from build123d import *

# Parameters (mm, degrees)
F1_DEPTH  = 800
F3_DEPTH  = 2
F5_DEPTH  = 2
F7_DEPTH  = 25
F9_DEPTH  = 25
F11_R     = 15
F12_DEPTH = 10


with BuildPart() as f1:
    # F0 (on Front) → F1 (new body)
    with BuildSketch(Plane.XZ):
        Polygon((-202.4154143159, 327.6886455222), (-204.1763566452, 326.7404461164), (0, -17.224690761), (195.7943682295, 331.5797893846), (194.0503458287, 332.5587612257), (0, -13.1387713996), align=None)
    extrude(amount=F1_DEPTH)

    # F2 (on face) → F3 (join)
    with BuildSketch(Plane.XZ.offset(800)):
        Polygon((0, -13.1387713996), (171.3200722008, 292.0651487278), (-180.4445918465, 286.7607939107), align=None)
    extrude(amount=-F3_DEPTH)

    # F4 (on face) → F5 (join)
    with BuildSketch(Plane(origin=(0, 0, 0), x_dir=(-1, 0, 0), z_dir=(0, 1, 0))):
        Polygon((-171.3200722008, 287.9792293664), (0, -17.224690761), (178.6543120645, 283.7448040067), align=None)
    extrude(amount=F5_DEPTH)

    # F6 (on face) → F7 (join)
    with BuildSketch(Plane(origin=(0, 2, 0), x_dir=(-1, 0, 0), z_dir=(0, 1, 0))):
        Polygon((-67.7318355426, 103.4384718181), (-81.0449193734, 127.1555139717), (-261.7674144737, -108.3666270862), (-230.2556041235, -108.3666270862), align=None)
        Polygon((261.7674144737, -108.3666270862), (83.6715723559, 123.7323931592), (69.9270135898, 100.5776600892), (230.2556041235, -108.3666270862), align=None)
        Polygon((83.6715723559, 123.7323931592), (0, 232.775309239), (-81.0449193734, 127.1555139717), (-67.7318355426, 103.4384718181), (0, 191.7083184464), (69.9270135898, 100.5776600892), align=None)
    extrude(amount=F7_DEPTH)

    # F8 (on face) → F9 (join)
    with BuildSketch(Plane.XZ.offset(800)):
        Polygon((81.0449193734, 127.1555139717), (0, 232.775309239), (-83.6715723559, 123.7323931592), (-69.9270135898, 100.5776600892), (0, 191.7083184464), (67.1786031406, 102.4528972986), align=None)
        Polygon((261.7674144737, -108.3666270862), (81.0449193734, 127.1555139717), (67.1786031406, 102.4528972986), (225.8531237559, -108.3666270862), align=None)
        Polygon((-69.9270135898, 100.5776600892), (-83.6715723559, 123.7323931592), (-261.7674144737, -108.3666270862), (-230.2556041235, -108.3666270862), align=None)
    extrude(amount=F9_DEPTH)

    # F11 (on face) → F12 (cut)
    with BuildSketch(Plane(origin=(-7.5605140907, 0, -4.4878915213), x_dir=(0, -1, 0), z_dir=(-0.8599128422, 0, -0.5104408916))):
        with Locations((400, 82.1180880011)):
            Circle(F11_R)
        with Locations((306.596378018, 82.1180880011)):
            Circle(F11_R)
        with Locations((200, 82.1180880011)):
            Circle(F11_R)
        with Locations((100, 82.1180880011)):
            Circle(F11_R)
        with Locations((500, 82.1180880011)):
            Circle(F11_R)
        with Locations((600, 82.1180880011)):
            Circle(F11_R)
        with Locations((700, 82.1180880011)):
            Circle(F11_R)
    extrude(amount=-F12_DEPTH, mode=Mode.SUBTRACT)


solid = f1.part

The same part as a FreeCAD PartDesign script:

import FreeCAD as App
import Part
import Sketcher
Q = App.Units.Quantity

doc = App.newDocument("Part")
body = doc.addObject("PartDesign::Body", "Body")

sketch1 = doc.addObject("Sketcher::SketchObject", "Sketch")
body.addObject(sketch1)
sketch1.AttachmentSupport = (doc.XZ_Plane, [""])
sketch1.MapMode = "FlatFace"
sketch1.addGeometry(Part.LineSegment(App.Vector(-202.4, 327.7, 0), App.Vector(-204.2, 326.7, 0)), False)
sketch1.addGeometry(Part.LineSegment(App.Vector(-204.2, 326.7, 0), App.Vector(0, -17.2, 0)), False)
sketch1.addGeometry(Part.LineSegment(App.Vector(0, -17.2, 0), App.Vector(195.8, 331.6, 0)), False)
sketch1.addGeometry(Part.LineSegment(App.Vector(195.8, 331.6, 0), App.Vector(194.1, 332.6, 0)), False)
sketch1.addGeometry(Part.LineSegment(App.Vector(194.1, 332.6, 0), App.Vector(0, -13.1, 0)), False)
sketch1.addGeometry(Part.LineSegment(App.Vector(0, -13.1, 0), App.Vector(-202.4, 327.7, 0)), False)
sketch1.addConstraint(Sketcher.Constraint("Coincident", 0, 2, 1, 1))
sketch1.addConstraint(Sketcher.Constraint("Coincident", 1, 2, 2, 1))
sketch1.addConstraint(Sketcher.Constraint("Coincident", 2, 2, 3, 1))
sketch1.addConstraint(Sketcher.Constraint("Coincident", 3, 2, 4, 1))
sketch1.addConstraint(Sketcher.Constraint("Coincident", 4, 2, 5, 1))
sketch1.addConstraint(Sketcher.Constraint("Coincident", 5, 2, 0, 1))
sketch1.addConstraint(Sketcher.Constraint("PointOnObject", 1, 2, -2))
sketch1.addConstraint(Sketcher.Constraint("PointOnObject", 4, 2, -2))
sketch1.addConstraint(Sketcher.Constraint("Perpendicular", 2, 3))
sketch1.addConstraint(Sketcher.Constraint("Perpendicular", 3, 4))
sketch1.addConstraint(Sketcher.Constraint("Equal", 1, 2))
sketch1.addConstraint(Sketcher.Constraint("Equal", 0, 3))
sketch1.addConstraint(Sketcher.Constraint("Distance", 0, Q("2 mm")))
sketch1.addConstraint(Sketcher.Constraint("Distance", 1, Q("400 mm")))
sketch1.addConstraint(Sketcher.Constraint("DistanceY", 0, 2, 5, 2, Q("0.948199 mm")))
sketch1.addConstraint(Sketcher.Constraint("DistanceY", 1, 2, -1, 1, Q("17.224691 mm")))
sketch1.addConstraint(Sketcher.Constraint("DistanceX", -1, 1, 2, 2, Q("195.794368 mm")))
sketch1.addConstraint(Sketcher.Constraint("DistanceX", 5, 2, 3, 2, Q("396.46576 mm")))
pad1 = doc.addObject("PartDesign::Pad", "Pad")
body.addObject(pad1)
pad1.Profile = sketch1
pad1.Length = 800

sketch2 = doc.addObject("Sketcher::SketchObject", "Sketch001")
body.addObject(sketch2)
sketch2.AttachmentSupport = (doc.XZ_Plane, [""])
sketch2.MapMode = "FlatFace"
sketch2.AttachmentOffset = App.Placement(App.Vector(0, 0, 800), App.Rotation())
sketch2.addGeometry(Part.LineSegment(App.Vector(0, -13, 0), App.Vector(171, 292, 0)), False)
sketch2.addGeometry(Part.LineSegment(App.Vector(171, 292, 0), App.Vector(-180, 287, 0)), False)
sketch2.addGeometry(Part.LineSegment(App.Vector(-180, 287, 0), App.Vector(0, -13, 0)), False)
sketch2.addConstraint(Sketcher.Constraint("Coincident", 0, 2, 1, 1))
sketch2.addConstraint(Sketcher.Constraint("Coincident", 1, 2, 2, 1))
sketch2.addConstraint(Sketcher.Constraint("Coincident", 2, 2, 0, 1))
sketch2.addConstraint(Sketcher.Constraint("PointOnObject", 2, 2, -2))
sketch2.addConstraint(Sketcher.Constraint("Equal", 0, 2))
sketch2.addConstraint(Sketcher.Constraint("Distance", 0, Q("350 mm")))
sketch2.addConstraint(Sketcher.Constraint("DistanceY", -1, 1, 0, 2, Q("292.065149 mm")))
sketch2.addConstraint(Sketcher.Constraint("DistanceX", 1, 2, -1, 1, Q("180.444592 mm")))
sketch2.addConstraint(Sketcher.Constraint("DistanceY", 2, 2, -1, 1, Q("13.138771 mm")))
pad2 = doc.addObject("PartDesign::Pad", "Pad001")
body.addObject(pad2)
pad2.Profile = sketch2
pad2.Length = 2
pad2.Reversed = True

sketch3 = doc.addObject("Sketcher::SketchObject", "Sketch002")
body.addObject(sketch3)
sketch3.AttachmentSupport = (doc.XZ_Plane, [""])
sketch3.MapMode = "FlatFace"
sketch3.addGeometry(Part.LineSegment(App.Vector(171, 288, 0), App.Vector(0, -17, 0)), False)
sketch3.addGeometry(Part.LineSegment(App.Vector(0, -17, 0), App.Vector(-179, 284, 0)), False)
sketch3.addGeometry(Part.LineSegment(App.Vector(-179, 284, 0), App.Vector(171, 288, 0)), False)
sketch3.addConstraint(Sketcher.Constraint("Coincident", 0, 2, 1, 1))
sketch3.addConstraint(Sketcher.Constraint("Coincident", 1, 2, 2, 1))
sketch3.addConstraint(Sketcher.Constraint("Coincident", 2, 2, 0, 1))
sketch3.addConstraint(Sketcher.Constraint("PointOnObject", 0, 2, -2))
sketch3.addConstraint(Sketcher.Constraint("Equal", 0, 1))
sketch3.addConstraint(Sketcher.Constraint("Equal", 1, 2))
sketch3.addConstraint(Sketcher.Constraint("Distance", 0, Q("350 mm")))
sketch3.addConstraint(Sketcher.Constraint("DistanceY", 0, 2, -1, 1, Q("17.224691 mm")))
sketch3.addConstraint(Sketcher.Constraint("DistanceY", -1, 1, 2, 2, Q("287.979229 mm")))
pad3 = doc.addObject("PartDesign::Pad", "Pad002")
body.addObject(pad3)
pad3.Profile = sketch3
pad3.Length = 2
pad3.Reversed = True

sketch4 = doc.addObject("Sketcher::SketchObject", "Sketch003")
body.addObject(sketch4)
sketch4.AttachmentSupport = (doc.XZ_Plane, [""])
sketch4.MapMode = "FlatFace"
sketch4.AttachmentOffset = App.Placement(App.Vector(0, 0, -2), App.Rotation())
sketch4.addGeometry(Part.LineSegment(App.Vector(262, -108, 0), App.Vector(230, -108, 0)), False)
sketch4.addGeometry(Part.LineSegment(App.Vector(230, -108, 0), App.Vector(0, 192, 0)), False)
sketch4.addGeometry(Part.LineSegment(App.Vector(0, 192, 0), App.Vector(-230, -108, 0)), False)
sketch4.addGeometry(Part.LineSegment(App.Vector(-230, -108, 0), App.Vector(-262, -108, 0)), False)
sketch4.addGeometry(Part.LineSegment(App.Vector(-262, -108, 0), App.Vector(0, 233, 0)), False)
sketch4.addGeometry(Part.LineSegment(App.Vector(0, 233, 0), App.Vector(262, -108, 0)), False)
sketch4.addConstraint(Sketcher.Constraint("Coincident", 0, 2, 1, 1))
sketch4.addConstraint(Sketcher.Constraint("Coincident", 1, 2, 2, 1))
sketch4.addConstraint(Sketcher.Constraint("Coincident", 2, 2, 3, 1))
sketch4.addConstraint(Sketcher.Constraint("Coincident", 3, 2, 4, 1))
sketch4.addConstraint(Sketcher.Constraint("Coincident", 4, 2, 5, 1))
sketch4.addConstraint(Sketcher.Constraint("Coincident", 5, 2, 0, 1))
sketch4.addConstraint(Sketcher.Constraint("Horizontal", 0))
sketch4.addConstraint(Sketcher.Constraint("Horizontal", 3))
sketch4.addConstraint(Sketcher.Constraint("Symmetric", 0, 2, 2, 2, -2))
sketch4.addConstraint(Sketcher.Constraint("PointOnObject", 1, 2, -2))
sketch4.addConstraint(Sketcher.Constraint("PointOnObject", 4, 2, -2))
sketch4.addConstraint(Sketcher.Constraint("Parallel", 2, 4))
sketch4.addConstraint(Sketcher.Constraint("Parallel", 1, 5))
sketch4.addConstraint(Sketcher.Constraint("Distance", 4, Q("430 mm")))
sketch4.addConstraint(Sketcher.Constraint("Angle", 1, Q("127.5 deg")))
sketch4.addConstraint(Sketcher.Constraint("DistanceX", 0, 2, 0, 1, Q("31.51181 mm")))
sketch4.addConstraint(Sketcher.Constraint("DistanceY", -1, 1, 1, 2, Q("191.708318 mm")))
pad4 = doc.addObject("PartDesign::Pad", "Pad003")
body.addObject(pad4)
pad4.Profile = sketch4
pad4.Length = 25
pad4.Reversed = True

sketch5 = doc.addObject("Sketcher::SketchObject", "Sketch004")
body.addObject(sketch5)
sketch5.AttachmentSupport = (doc.XZ_Plane, [""])
sketch5.MapMode = "FlatFace"
sketch5.AttachmentOffset = App.Placement(App.Vector(0, 0, 800), App.Rotation())
sketch5.addGeometry(Part.LineSegment(App.Vector(0, 233, 0), App.Vector(-262, -108, 0)), False)
sketch5.addGeometry(Part.LineSegment(App.Vector(-262, -108, 0), App.Vector(-230, -108, 0)), False)
sketch5.addGeometry(Part.LineSegment(App.Vector(-230, -108, 0), App.Vector(0, 192, 0)), False)
sketch5.addGeometry(Part.LineSegment(App.Vector(0, 192, 0), App.Vector(226, -108, 0)), False)
sketch5.addGeometry(Part.LineSegment(App.Vector(226, -108, 0), App.Vector(262, -108, 0)), False)
sketch5.addGeometry(Part.LineSegment(App.Vector(262, -108, 0), App.Vector(0, 233, 0)), False)
sketch5.addConstraint(Sketcher.Constraint("Coincident", 0, 2, 1, 1))
sketch5.addConstraint(Sketcher.Constraint("Coincident", 1, 2, 2, 1))
sketch5.addConstraint(Sketcher.Constraint("Coincident", 2, 2, 3, 1))
sketch5.addConstraint(Sketcher.Constraint("Coincident", 3, 2, 4, 1))
sketch5.addConstraint(Sketcher.Constraint("Coincident", 4, 2, 5, 1))
sketch5.addConstraint(Sketcher.Constraint("Coincident", 5, 2, 0, 1))
sketch5.addConstraint(Sketcher.Constraint("Horizontal", 1))
sketch5.addConstraint(Sketcher.Constraint("Horizontal", 4))
sketch5.addConstraint(Sketcher.Constraint("Symmetric", 0, 2, 4, 2, -2))
sketch5.addConstraint(Sketcher.Constraint("PointOnObject", 2, 2, -2))
sketch5.addConstraint(Sketcher.Constraint("PointOnObject", 5, 2, -2))
sketch5.addConstraint(Sketcher.Constraint("Parallel", 0, 2))
sketch5.addConstraint(Sketcher.Constraint("Distance", 0, Q("430 mm")))
sketch5.addConstraint(Sketcher.Constraint("Angle", 0, Q("-127.5 deg")))
sketch5.addConstraint(Sketcher.Constraint("DistanceX", 1, 1, 1, 2, Q("31.51181 mm")))
sketch5.addConstraint(Sketcher.Constraint("DistanceX", 4, 1, 4, 2, Q("35.914291 mm")))
sketch5.addConstraint(Sketcher.Constraint("DistanceY", -1, 1, 2, 2, Q("191.708318 mm")))
pad5 = doc.addObject("PartDesign::Pad", "Pad004")
body.addObject(pad5)
pad5.Profile = sketch5
pad5.Length = 25

sketch6 = doc.addObject("Sketcher::SketchObject", "Sketch005")
body.addObject(sketch6)
sketch6.Placement = App.Placement(App.Vector(-7.560514, 0, -4.487892), App.Rotation(App.Vector(0, -1, 0), App.Vector(-0.510440892, 0, 0.859912842), App.Vector(-0.859912842, 0, -0.510440892), "ZXY"))
sketch6.addGeometry(Part.Circle(App.Vector(400, 82, 0), App.Vector(0, 0, 1), 15), False)
sketch6.addGeometry(Part.Circle(App.Vector(307, 82, 0), App.Vector(0, 0, 1), 15), False)
sketch6.addGeometry(Part.Circle(App.Vector(200, 82, 0), App.Vector(0, 0, 1), 15), False)
sketch6.addGeometry(Part.Circle(App.Vector(100, 82, 0), App.Vector(0, 0, 1), 15), False)
sketch6.addGeometry(Part.Circle(App.Vector(500, 82, 0), App.Vector(0, 0, 1), 15), False)
sketch6.addGeometry(Part.Circle(App.Vector(600, 82, 0), App.Vector(0, 0, 1), 15), False)
sketch6.addGeometry(Part.Circle(App.Vector(700, 82, 0), App.Vector(0, 0, 1), 15), False)
sketch6.addConstraint(Sketcher.Constraint("Equal", 0, 1))
sketch6.addConstraint(Sketcher.Constraint("Equal", 1, 2))
sketch6.addConstraint(Sketcher.Constraint("Equal", 2, 3))
sketch6.addConstraint(Sketcher.Constraint("Equal", 3, 4))
sketch6.addConstraint(Sketcher.Constraint("Equal", 4, 5))
sketch6.addConstraint(Sketcher.Constraint("Equal", 5, 6))
sketch6.addConstraint(Sketcher.Constraint("Horizontal", 0, 3, 1, 3))
sketch6.addConstraint(Sketcher.Constraint("Horizontal", 1, 3, 2, 3))
sketch6.addConstraint(Sketcher.Constraint("Horizontal", 2, 3, 3, 3))
sketch6.addConstraint(Sketcher.Constraint("Horizontal", 3, 3, 4, 3))
sketch6.addConstraint(Sketcher.Constraint("Horizontal", 4, 3, 5, 3))
sketch6.addConstraint(Sketcher.Constraint("Horizontal", 5, 3, 6, 3))
sketch6.addConstraint(Sketcher.Constraint("Diameter", 0, Q("30 mm")))
sketch6.addConstraint(Sketcher.Constraint("DistanceX", -1, 1, 0, 3, Q("400 mm")))
sketch6.addConstraint(Sketcher.Constraint("DistanceX", -1, 1, 2, 3, Q("200 mm")))
sketch6.addConstraint(Sketcher.Constraint("DistanceX", -1, 1, 3, 3, Q("100 mm")))
sketch6.addConstraint(Sketcher.Constraint("DistanceX", -1, 1, 4, 3, Q("500 mm")))
sketch6.addConstraint(Sketcher.Constraint("DistanceX", -1, 1, 5, 3, Q("600 mm")))
sketch6.addConstraint(Sketcher.Constraint("DistanceX", -1, 1, 6, 3, Q("700 mm")))
sketch6.addConstraint(Sketcher.Constraint("DistanceY", -1, 1, 0, 3, Q("82.118088 mm")))
sketch6.addConstraint(Sketcher.Constraint("DistanceX", -1, 1, 1, 3, Q("306.596378 mm")))
pocket1 = doc.addObject("PartDesign::Pocket", "Pocket")
body.addObject(pocket1)
pocket1.Profile = sketch6
pocket1.Length = 10

doc.recompute()
